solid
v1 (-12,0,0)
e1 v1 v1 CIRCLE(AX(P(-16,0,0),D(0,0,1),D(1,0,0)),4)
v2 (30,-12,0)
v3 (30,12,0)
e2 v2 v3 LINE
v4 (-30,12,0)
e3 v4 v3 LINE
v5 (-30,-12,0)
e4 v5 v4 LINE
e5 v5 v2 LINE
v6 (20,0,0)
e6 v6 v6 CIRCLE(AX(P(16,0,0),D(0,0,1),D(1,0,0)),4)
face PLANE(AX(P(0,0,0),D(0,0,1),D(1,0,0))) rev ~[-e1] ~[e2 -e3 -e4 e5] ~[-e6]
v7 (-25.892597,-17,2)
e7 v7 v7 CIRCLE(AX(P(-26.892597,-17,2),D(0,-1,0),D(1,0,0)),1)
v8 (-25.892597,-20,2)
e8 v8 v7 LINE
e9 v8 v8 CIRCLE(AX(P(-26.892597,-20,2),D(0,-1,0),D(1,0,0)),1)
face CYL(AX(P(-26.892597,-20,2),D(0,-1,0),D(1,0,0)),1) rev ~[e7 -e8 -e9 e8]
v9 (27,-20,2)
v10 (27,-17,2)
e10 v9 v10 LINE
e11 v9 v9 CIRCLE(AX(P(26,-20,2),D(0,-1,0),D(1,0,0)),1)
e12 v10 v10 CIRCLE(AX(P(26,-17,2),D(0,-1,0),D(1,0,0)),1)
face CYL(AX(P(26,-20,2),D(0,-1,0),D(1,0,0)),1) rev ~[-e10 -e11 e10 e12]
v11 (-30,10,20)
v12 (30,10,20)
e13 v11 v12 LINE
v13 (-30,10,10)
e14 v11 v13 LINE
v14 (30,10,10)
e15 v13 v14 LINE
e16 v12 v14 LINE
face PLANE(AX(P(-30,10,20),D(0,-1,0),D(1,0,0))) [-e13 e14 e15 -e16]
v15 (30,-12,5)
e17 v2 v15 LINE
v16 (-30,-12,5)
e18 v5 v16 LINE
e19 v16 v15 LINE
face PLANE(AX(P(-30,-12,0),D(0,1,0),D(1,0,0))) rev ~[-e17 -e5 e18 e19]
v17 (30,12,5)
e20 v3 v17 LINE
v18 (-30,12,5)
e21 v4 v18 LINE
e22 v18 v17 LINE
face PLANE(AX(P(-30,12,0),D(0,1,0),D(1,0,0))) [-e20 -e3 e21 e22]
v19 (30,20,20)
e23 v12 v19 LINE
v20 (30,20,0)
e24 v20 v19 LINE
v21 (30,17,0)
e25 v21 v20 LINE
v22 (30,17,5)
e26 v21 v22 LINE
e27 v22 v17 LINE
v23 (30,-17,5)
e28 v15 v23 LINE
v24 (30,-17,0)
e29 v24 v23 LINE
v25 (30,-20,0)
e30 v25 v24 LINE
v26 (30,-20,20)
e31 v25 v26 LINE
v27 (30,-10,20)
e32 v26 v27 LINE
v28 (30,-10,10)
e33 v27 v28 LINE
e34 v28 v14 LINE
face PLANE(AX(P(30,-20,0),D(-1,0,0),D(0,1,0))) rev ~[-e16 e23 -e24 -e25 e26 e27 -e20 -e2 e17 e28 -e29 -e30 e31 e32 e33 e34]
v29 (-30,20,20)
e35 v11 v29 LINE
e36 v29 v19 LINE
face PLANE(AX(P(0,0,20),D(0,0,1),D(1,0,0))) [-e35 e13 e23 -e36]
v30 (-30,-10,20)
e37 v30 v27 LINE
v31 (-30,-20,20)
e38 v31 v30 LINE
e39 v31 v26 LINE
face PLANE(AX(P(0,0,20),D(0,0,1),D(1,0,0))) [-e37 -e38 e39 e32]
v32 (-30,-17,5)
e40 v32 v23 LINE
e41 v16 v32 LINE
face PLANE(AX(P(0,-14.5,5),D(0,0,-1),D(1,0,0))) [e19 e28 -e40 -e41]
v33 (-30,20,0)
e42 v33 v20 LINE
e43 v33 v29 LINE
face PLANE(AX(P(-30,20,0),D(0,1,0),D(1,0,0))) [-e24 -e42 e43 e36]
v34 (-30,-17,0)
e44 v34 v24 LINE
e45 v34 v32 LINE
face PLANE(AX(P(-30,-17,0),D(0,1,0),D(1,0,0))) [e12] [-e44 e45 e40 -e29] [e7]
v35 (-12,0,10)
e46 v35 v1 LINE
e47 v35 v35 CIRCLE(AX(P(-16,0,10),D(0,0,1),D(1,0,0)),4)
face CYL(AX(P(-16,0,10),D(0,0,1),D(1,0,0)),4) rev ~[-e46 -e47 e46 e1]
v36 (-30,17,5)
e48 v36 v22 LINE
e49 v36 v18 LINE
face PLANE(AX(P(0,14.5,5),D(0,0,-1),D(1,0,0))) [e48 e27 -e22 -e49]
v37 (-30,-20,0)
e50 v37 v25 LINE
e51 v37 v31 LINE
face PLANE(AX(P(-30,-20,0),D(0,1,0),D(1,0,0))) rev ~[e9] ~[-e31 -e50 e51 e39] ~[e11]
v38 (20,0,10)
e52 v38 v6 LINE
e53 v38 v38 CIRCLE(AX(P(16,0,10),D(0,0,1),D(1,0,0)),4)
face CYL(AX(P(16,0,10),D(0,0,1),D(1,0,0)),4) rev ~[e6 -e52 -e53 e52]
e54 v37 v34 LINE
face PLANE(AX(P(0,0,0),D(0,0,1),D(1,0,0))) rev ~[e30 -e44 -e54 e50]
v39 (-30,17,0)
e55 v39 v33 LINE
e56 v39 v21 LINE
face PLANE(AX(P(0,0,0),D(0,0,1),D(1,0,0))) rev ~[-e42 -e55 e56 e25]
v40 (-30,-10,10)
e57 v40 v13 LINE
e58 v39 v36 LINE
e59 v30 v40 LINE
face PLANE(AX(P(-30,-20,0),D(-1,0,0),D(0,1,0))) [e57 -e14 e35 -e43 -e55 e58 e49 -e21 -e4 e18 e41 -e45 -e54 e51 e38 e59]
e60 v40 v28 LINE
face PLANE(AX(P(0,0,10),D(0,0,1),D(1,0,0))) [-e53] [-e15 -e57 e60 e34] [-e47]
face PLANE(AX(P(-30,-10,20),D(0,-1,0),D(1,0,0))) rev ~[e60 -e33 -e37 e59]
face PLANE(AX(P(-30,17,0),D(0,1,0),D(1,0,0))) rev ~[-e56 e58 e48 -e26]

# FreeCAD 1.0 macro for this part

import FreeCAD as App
import Part
import Sketcher

V = App.Vector


def add_polygon(sketch, points):
    """Adds a closed chain of lines whose ends are joined by coincident constraints."""
    first, n = sketch.GeometryCount, len(points)
    for a, b in zip(points, points[1:] + points[:1]):
        sketch.addGeometry(Part.LineSegment(App.Vector(*a, 0), App.Vector(*b, 0)), False)
    for i in range(n):
        sketch.addConstraint(Sketcher.Constraint("Coincident", first + i, 2, first + (i + 1) % n, 1))

doc = App.newDocument("Part")
body = doc.addObject("PartDesign::Body", "Body")

# Sketch on XY plane
sketch1 = doc.addObject("Sketcher::SketchObject", "Sketch")
body.addObject(sketch1)
sketch1.AttachmentSupport = (doc.XY_Plane, [""])
sketch1.MapMode = "FlatFace"
add_polygon(sketch1, [(-30, 20), (-30, -20), (30, -20), (30, 20)])  # lines 0-3
sketch1.addConstraint([
    Sketcher.Constraint("Vertical", 0),
    Sketcher.Constraint("Horizontal", 1),
    Sketcher.Constraint("Vertical", 2),
    Sketcher.Constraint("Horizontal", 3),
    Sketcher.Constraint("Symmetric", 0, 2, 2, 2, -1, 1),
    Sketcher.Constraint("DistanceX", 1, 1, 1, 2, 60.0),
    Sketcher.Constraint("DistanceY", 0, 2, 0, 1, 40.0),
])
pad1 = doc.addObject("PartDesign::Pad", "Pad")
body.addObject(pad1)
pad1.Profile = sketch1
pad1.Length = 20

# Sketch on XY plane
sketch2 = doc.addObject("Sketcher::SketchObject", "Sketch001")
body.addObject(sketch2)
sketch2.AttachmentSupport = (doc.XY_Plane, [""])
sketch2.MapMode = "FlatFace"
sketch2.AttachmentOffset = App.Placement(V(0, 0, 20), App.Rotation())
add_polygon(sketch2, [(-30, 10), (-30, -10), (30, -10), (30, 10)])  # lines 0-3
sketch2.addConstraint([
    Sketcher.Constraint("Vertical", 0),
    Sketcher.Constraint("Horizontal", 1),
    Sketcher.Constraint("Vertical", 2),
    Sketcher.Constraint("Horizontal", 3),
    Sketcher.Constraint("Symmetric", 0, 2, 2, 2, -1, 1),
    Sketcher.Constraint("DistanceX", 1, 1, 1, 2, 60.0),
    Sketcher.Constraint("DistanceY", 0, 2, 0, 1, 20.0),
])
pocket1 = doc.addObject("PartDesign::Pocket", "Pocket")
body.addObject(pocket1)
pocket1.Profile = sketch2
pocket1.Length = 10

# Sketch on XY plane
sketch3 = doc.addObject("Sketcher::SketchObject", "Sketch002")
body.addObject(sketch3)
sketch3.AttachmentSupport = (doc.XY_Plane, [""])
sketch3.MapMode = "FlatFace"
sketch3.AttachmentOffset = App.Placement(V(0, 0, 10), App.Rotation())
sketch3.addGeometry(Part.Circle(V(-16, 0, 0), V(0, 0, 1), 4), False)
sketch3.addConstraint([
    Sketcher.Constraint("PointOnObject", 0, 3, -1),
    Sketcher.Constraint("Diameter", 0, 8.0),
    Sketcher.Constraint("DistanceX", 0, 3, -1, 1, 16.0),
])
pocket2 = doc.addObject("PartDesign::Pocket", "Pocket001")
body.addObject(pocket2)
pocket2.Profile = sketch3
pocket2.Length = 25

# Sketch on XY plane
sketch4 = doc.addObject("Sketcher::SketchObject", "Sketch003")
body.addObject(sketch4)
sketch4.AttachmentSupport = (doc.XY_Plane, [""])
sketch4.MapMode = "FlatFace"
sketch4.AttachmentOffset = App.Placement(V(0, 0, 10), App.Rotation())
sketch4.addGeometry(Part.Circle(V(16, 0, 0), V(0, 0, 1), 4), False)
sketch4.addConstraint([
    Sketcher.Constraint("PointOnObject", 0, 3, -1),
    Sketcher.Constraint("Diameter", 0, 8.0),
    Sketcher.Constraint("DistanceX", -1, 1, 0, 3, 16.0),
])
pocket3 = doc.addObject("PartDesign::Pocket", "Pocket002")
body.addObject(pocket3)
pocket3.Profile = sketch4
pocket3.Length = 25

# Sketch on XY plane
sketch5 = doc.addObject("Sketcher::SketchObject", "Sketch004")
body.addObject(sketch5)
sketch5.AttachmentSupport = (doc.XY_Plane, [""])
sketch5.MapMode = "FlatFace"
add_polygon(sketch5, [(-30, -17), (-30, -12), (30, -12), (30, -17)])  # lines 0-3
sketch5.addConstraint([
    Sketcher.Constraint("Vertical", 0),
    Sketcher.Constraint("Horizontal", 1),
    Sketcher.Constraint("Vertical", 2),
    Sketcher.Constraint("Horizontal", 3),
    Sketcher.Constraint("DistanceX", 1, 1, 1, 2, 60.0),
    Sketcher.Constraint("DistanceY", 0, 1, 0, 2, 5.0),
    Sketcher.Constraint("DistanceX", 0, 2, -1, 1, 30.0),
    Sketcher.Constraint("DistanceY", 0, 2, -1, 1, 12.0),
])
pocket4 = doc.addObject("PartDesign::Pocket", "Pocket003")
body.addObject(pocket4)
pocket4.Profile = sketch5
pocket4.Length = 5
pocket4.Reversed = True

# Sketch on XY plane
sketch6 = doc.addObject("Sketcher::SketchObject", "Sketch005")
body.addObject(sketch6)
sketch6.AttachmentSupport = (doc.XY_Plane, [""])
sketch6.MapMode = "FlatFace"
add_polygon(sketch6, [(-30, 12), (-30, 17), (30, 17), (30, 12)])  # lines 0-3
sketch6.addConstraint([
    Sketcher.Constraint("Vertical", 0),
    Sketcher.Constraint("Horizontal", 1),
    Sketcher.Constraint("Vertical", 2),
    Sketcher.Constraint("Horizontal", 3),
    Sketcher.Constraint("DistanceX", 1, 1, 1, 2, 60.0),
    Sketcher.Constraint("DistanceY", 0, 1, 0, 2, 5.0),
    Sketcher.Constraint("DistanceX", 0, 2, -1, 1, 30.0),
    Sketcher.Constraint("DistanceY", -1, 1, 0, 2, 17.0),
])
pocket5 = doc.addObject("PartDesign::Pocket", "Pocket004")
body.addObject(pocket5)
pocket5.Profile = sketch6
pocket5.Length = 5
pocket5.Reversed = True

# Sketch on XZ plane
sketch7 = doc.addObject("Sketcher::SketchObject", "Sketch006")
body.addObject(sketch7)
sketch7.AttachmentSupport = (doc.XZ_Plane, [""])
sketch7.MapMode = "FlatFace"
sketch7.AttachmentOffset = App.Placement(V(0, 0, 20), App.Rotation())
sketch7.addGeometry(Part.Circle(V(-26.9, 2, 0), V(0, 0, 1), 1), False)
sketch7.addConstraint([
    Sketcher.Constraint("Diameter", 0, 2.0),
    Sketcher.Constraint("DistanceY", -1, 1, 0, 3, 2.0),
    Sketcher.Constraint("DistanceX", 0, 3, -1, 1, 26.892597),
])
pocket6 = doc.addObject("PartDesign::Pocket", "Pocket005")
body.addObject(pocket6)
pocket6.Profile = sketch7
pocket6.Length = 5

# Sketch on XZ plane
sketch8 = doc.addObject("Sketcher::SketchObject", "Sketch007")
body.addObject(sketch8)
sketch8.AttachmentSupport = (doc.XZ_Plane, [""])
sketch8.MapMode = "FlatFace"
sketch8.AttachmentOffset = App.Placement(V(0, 0, 20), App.Rotation())
sketch8.addGeometry(Part.Circle(V(26, 2, 0), V(0, 0, 1), 1), False)
sketch8.addConstraint([
    Sketcher.Constraint("Diameter", 0, 2.0),
    Sketcher.Constraint("DistanceX", -1, 1, 0, 3, 26.0),
    Sketcher.Constraint("DistanceY", -1, 1, 0, 3, 2.0),
])
pocket7 = doc.addObject("PartDesign::Pocket", "Pocket006")
body.addObject(pocket7)
pocket7.Profile = sketch8
pocket7.Length = 5

doc.recompute()
